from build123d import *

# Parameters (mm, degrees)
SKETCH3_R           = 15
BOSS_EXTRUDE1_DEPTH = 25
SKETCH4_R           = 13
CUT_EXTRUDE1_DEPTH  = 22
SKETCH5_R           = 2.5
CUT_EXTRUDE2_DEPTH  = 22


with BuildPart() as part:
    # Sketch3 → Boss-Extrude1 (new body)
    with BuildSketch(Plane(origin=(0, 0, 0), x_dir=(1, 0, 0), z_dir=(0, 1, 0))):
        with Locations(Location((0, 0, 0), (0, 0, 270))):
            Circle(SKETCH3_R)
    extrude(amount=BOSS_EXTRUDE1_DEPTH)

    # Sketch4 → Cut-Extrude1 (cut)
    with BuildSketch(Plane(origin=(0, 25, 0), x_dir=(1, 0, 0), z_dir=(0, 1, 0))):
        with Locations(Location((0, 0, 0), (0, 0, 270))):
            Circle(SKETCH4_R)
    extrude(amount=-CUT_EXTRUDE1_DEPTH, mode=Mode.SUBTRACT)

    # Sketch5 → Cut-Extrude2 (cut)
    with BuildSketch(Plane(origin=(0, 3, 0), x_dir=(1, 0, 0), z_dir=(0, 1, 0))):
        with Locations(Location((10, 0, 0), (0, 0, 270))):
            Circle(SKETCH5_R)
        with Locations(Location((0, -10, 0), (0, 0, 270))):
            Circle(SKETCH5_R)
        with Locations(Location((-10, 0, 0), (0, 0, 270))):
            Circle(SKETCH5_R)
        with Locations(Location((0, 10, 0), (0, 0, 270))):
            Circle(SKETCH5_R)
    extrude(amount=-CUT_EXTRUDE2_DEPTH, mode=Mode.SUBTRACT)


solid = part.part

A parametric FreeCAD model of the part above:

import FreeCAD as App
import Part
import Sketcher
from FreeCAD import Vector

doc = App.newDocument("Part")
body = doc.addObject("PartDesign::Body", "Body")

sketch1 = body.newObject("Sketcher::SketchObject", "Sketch")
sketch1.AttachmentSupport = (doc.getObject("XZ_Plane"), [""])
sketch1.MapMode = "FlatFace"
sketch1.addGeometry(Part.Circle(Vector(0, 0, 0), Vector(0, 0, 1), 15), False)
sketch1.addConstraint(Sketcher.Constraint("Coincident", 0, 3, -1, 1))
sketch1.addConstraint(Sketcher.Constraint("Diameter", 0, 30.0))
pad1 = body.newObject("PartDesign::Pad", "Pad")
pad1.Profile = sketch1
pad1.Length = 25
pad1.Reversed = True

sketch2 = body.newObject("Sketcher::SketchObject", "Sketch001")
sketch2.AttachmentSupport = (doc.getObject("XZ_Plane"), [""])
sketch2.MapMode = "FlatFace"
sketch2.AttachmentOffset = App.Placement(Vector(0, 0, -25), App.Rotation())
sketch2.addGeometry(Part.Circle(Vector(0, 0, 0), Vector(0, 0, 1), 13), False)
sketch2.addConstraint(Sketcher.Constraint("Coincident", 0, 3, -1, 1))
sketch2.addConstraint(Sketcher.Constraint("Diameter", 0, 26.0))
pocket1 = body.newObject("PartDesign::Pocket", "Pocket")
pocket1.Profile = sketch2
pocket1.Length = 22
pocket1.Reversed = True

sketch3 = body.newObject("Sketcher::SketchObject", "Sketch002")
sketch3.AttachmentSupport = (doc.getObject("XZ_Plane"), [""])
sketch3.MapMode = "FlatFace"
sketch3.AttachmentOffset = App.Placement(Vector(0, 0, -3), App.Rotation())
sketch3.addGeometry(Part.Circle(Vector(10, 0, 0), Vector(0, 0, 1), 2.5), False)
sketch3.addGeometry(Part.Circle(Vector(0, 10, 0), Vector(0, 0, 1), 2.5), False)
sketch3.addGeometry(Part.Circle(Vector(-10, 0, 0), Vector(0, 0, 1), 2.5), False)
sketch3.addGeometry(Part.Circle(Vector(0, -10, 0), Vector(0, 0, 1), 2.5), False)
sketch3.addConstraint(Sketcher.Constraint("Equal", 0, 1))
sketch3.addConstraint(Sketcher.Constraint("Equal", 1, 2))
sketch3.addConstraint(Sketcher.Constraint("Equal", 2, 3))
sketch3.addConstraint(Sketcher.Constraint("Symmetric", 0, 3, 2, 3, -1, 1))
sketch3.addConstraint(Sketcher.Constraint("Symmetric", 1, 3, 3, 3, -1, 1))
sketch3.addConstraint(Sketcher.Constraint("PointOnObject", 0, 3, -1))
sketch3.addConstraint(Sketcher.Constraint("PointOnObject", 1, 3, -2))
sketch3.addConstraint(Sketcher.Constraint("Diameter", 0, 5.0))
sketch3.addConstraint(Sketcher.Constraint("DistanceX", -1, 1, 0, 3, 10.0))
sketch3.addConstraint(Sketcher.Constraint("DistanceY", -1, 1, 1, 3, 10.0))
pocket2 = body.newObject("PartDesign::Pocket", "Pocket001")
pocket2.Profile = sketch3
pocket2.Length = 22
pocket2.Reversed = True

doc.recompute()
